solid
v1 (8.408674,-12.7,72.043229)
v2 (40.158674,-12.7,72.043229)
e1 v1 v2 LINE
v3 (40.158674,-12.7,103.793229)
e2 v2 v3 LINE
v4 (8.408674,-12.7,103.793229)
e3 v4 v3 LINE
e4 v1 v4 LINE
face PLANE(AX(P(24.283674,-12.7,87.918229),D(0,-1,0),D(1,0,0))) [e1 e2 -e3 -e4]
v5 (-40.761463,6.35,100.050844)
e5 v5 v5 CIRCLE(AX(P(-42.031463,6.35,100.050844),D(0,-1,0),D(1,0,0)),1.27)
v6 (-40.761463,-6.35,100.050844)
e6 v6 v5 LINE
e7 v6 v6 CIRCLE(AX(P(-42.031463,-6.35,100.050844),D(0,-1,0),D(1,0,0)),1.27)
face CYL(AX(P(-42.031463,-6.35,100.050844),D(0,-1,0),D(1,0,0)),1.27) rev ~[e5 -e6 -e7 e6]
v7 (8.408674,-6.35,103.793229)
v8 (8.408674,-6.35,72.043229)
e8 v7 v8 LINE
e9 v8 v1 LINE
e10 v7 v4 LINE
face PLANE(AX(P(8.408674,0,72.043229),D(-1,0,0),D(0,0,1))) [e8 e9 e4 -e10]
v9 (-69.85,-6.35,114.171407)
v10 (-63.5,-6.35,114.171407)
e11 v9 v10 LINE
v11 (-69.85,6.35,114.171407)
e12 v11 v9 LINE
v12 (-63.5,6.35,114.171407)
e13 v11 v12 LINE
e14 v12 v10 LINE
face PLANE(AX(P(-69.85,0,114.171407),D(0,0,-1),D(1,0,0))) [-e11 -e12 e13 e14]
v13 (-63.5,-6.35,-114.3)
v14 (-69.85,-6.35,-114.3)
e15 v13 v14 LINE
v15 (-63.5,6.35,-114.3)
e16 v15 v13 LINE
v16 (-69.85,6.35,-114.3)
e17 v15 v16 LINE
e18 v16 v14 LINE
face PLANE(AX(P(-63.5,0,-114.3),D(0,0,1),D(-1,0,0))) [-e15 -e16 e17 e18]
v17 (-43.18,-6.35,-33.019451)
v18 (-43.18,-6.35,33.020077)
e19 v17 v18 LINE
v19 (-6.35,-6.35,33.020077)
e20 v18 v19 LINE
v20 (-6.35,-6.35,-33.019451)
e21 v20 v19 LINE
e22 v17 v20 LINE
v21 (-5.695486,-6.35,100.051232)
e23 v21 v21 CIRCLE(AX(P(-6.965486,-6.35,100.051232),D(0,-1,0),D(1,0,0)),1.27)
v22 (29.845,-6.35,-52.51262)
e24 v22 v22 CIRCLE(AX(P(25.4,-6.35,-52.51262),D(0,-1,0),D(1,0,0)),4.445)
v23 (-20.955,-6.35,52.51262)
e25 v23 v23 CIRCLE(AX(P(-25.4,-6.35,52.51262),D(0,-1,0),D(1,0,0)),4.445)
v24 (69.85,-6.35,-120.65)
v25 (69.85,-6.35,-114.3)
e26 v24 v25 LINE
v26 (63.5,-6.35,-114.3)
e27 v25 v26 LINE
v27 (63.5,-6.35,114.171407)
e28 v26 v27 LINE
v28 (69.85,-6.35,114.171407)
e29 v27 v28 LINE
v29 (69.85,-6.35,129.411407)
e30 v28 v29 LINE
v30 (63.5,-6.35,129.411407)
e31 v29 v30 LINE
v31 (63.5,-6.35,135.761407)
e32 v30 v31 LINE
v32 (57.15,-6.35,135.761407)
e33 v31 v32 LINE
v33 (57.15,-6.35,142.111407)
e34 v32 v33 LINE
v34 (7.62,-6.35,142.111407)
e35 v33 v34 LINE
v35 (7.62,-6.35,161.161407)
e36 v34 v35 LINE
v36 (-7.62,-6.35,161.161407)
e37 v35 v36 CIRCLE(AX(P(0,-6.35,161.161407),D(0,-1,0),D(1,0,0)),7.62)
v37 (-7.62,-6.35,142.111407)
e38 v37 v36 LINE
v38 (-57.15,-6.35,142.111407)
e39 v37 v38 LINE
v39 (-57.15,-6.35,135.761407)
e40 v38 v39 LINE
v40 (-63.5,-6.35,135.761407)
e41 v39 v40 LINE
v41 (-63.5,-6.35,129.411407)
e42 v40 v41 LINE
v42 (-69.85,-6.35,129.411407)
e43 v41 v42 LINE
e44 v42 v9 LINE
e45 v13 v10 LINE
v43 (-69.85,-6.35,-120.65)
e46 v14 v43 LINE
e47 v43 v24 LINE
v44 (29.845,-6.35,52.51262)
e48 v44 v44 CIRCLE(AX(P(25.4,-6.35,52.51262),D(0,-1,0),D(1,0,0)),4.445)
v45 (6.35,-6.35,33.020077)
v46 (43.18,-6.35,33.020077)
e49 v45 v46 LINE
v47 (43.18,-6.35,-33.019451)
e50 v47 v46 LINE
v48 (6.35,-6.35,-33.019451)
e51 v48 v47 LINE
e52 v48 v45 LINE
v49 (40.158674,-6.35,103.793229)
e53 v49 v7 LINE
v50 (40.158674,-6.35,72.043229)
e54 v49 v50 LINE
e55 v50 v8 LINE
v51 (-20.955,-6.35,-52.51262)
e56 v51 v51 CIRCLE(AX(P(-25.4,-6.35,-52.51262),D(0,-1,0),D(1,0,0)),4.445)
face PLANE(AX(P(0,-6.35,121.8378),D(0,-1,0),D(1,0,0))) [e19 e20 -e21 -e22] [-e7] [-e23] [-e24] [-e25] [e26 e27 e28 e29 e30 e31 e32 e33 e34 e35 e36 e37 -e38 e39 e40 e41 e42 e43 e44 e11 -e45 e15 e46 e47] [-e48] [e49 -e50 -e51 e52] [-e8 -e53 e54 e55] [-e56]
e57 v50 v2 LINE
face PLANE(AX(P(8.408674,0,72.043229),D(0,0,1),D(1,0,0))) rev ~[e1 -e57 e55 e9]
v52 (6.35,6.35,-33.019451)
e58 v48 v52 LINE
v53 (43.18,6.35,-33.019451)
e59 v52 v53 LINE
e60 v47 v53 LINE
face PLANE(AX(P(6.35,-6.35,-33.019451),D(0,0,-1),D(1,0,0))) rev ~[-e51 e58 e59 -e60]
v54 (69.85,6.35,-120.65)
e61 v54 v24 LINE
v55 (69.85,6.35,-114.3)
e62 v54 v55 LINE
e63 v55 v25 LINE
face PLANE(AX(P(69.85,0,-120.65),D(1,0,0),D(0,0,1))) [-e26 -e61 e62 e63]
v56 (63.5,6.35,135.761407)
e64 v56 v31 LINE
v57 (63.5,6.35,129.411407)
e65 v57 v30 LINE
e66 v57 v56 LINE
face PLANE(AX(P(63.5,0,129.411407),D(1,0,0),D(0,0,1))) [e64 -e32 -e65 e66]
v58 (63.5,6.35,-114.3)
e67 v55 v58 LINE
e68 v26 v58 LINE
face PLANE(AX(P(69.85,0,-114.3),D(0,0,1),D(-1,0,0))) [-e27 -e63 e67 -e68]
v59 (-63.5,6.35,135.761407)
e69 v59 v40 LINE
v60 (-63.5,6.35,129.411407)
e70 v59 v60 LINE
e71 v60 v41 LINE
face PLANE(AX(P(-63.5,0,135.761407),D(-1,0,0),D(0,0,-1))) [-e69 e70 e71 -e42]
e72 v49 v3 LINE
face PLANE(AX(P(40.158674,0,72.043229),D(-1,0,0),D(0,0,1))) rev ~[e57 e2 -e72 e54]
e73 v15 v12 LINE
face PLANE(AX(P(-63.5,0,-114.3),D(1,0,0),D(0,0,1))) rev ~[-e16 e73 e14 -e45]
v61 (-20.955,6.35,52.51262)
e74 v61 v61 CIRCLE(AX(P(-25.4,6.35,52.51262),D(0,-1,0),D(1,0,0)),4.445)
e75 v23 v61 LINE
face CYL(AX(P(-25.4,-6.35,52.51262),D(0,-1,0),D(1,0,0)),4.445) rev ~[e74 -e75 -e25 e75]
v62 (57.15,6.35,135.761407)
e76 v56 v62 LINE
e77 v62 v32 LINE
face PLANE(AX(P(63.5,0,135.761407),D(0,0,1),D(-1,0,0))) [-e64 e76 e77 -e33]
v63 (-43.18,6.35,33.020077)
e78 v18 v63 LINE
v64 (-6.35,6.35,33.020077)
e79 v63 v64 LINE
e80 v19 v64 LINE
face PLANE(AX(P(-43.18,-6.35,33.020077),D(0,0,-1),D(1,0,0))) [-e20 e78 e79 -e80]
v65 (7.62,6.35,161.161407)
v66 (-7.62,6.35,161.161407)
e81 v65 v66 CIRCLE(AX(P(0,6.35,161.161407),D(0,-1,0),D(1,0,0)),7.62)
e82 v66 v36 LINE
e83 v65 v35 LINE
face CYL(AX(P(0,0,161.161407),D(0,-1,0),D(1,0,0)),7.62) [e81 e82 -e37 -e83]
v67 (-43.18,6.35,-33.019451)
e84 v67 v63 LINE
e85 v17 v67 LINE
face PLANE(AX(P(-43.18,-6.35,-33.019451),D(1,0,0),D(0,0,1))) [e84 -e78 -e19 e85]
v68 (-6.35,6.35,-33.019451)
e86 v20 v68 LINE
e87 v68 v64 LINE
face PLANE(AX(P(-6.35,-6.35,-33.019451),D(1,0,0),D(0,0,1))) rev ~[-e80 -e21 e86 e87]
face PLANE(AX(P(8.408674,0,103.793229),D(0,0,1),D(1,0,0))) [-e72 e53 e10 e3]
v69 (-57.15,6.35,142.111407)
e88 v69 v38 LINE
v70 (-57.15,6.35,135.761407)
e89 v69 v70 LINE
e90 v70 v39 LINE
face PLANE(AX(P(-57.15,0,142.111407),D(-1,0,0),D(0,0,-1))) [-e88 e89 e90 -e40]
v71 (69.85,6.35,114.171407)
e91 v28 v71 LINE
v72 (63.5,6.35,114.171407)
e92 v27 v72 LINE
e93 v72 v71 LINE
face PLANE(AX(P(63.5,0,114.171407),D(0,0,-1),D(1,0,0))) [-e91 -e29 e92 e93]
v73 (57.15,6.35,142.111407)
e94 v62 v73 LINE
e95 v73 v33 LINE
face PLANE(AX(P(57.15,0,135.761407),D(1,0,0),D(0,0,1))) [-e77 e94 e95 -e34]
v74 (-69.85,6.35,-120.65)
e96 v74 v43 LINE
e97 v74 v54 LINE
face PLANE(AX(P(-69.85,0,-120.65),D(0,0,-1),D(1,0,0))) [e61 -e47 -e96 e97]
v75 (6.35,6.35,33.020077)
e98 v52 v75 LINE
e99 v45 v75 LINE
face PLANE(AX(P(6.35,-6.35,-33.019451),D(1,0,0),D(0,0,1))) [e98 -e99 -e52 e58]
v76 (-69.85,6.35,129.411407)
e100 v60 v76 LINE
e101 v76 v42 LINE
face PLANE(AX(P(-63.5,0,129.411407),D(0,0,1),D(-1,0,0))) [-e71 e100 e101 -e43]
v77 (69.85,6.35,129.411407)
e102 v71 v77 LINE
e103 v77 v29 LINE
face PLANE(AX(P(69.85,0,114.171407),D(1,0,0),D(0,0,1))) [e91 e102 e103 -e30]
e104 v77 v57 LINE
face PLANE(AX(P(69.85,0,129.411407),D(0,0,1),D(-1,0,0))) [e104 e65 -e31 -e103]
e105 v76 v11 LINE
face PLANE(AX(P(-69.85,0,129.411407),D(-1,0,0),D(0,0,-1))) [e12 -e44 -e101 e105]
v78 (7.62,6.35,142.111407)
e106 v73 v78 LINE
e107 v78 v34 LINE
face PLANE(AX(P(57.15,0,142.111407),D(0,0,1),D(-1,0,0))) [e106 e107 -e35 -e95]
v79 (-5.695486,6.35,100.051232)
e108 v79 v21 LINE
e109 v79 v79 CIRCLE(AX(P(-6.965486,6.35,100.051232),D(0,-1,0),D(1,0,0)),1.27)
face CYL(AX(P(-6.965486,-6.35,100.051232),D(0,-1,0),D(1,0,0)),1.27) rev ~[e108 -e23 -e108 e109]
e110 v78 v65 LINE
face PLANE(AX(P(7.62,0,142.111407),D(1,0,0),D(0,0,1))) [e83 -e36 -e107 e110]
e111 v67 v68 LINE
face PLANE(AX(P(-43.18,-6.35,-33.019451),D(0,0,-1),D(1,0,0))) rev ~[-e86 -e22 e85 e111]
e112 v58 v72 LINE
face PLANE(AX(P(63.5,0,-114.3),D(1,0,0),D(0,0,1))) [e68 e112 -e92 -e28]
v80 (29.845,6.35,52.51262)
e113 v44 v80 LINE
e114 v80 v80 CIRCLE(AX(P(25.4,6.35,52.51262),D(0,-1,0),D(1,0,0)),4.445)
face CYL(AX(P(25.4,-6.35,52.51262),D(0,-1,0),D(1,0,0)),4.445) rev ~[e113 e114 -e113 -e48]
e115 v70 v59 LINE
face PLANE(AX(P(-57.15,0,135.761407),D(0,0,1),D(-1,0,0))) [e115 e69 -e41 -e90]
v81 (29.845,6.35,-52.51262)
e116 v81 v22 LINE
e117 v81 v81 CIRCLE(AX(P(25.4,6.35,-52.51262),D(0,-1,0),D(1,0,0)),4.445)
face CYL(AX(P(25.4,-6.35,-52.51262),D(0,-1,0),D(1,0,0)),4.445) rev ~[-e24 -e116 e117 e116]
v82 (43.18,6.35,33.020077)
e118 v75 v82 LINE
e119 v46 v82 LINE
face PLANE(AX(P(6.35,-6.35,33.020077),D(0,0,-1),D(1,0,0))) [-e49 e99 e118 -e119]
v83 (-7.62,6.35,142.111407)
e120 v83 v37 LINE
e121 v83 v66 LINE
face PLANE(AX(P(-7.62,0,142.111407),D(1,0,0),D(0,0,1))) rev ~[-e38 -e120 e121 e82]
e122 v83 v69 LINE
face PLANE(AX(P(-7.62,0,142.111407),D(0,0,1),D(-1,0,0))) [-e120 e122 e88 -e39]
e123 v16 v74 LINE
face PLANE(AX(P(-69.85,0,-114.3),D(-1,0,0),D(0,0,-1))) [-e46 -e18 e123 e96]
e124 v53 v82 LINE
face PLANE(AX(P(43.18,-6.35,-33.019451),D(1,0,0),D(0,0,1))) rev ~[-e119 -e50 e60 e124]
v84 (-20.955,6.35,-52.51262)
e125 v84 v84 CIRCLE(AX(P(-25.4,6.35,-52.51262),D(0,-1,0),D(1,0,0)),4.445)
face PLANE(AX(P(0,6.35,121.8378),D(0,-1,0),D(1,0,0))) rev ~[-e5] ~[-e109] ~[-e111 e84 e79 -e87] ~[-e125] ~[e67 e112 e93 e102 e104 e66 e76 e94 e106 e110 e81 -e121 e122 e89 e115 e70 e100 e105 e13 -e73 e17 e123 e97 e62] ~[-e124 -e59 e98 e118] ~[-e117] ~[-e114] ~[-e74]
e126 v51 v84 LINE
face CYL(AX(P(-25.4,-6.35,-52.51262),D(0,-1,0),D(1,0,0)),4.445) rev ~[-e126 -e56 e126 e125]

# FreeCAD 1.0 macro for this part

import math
import FreeCAD as App
import Part
import Sketcher
from FreeCAD import Vector
Q = App.Units.Quantity


def add_polygon(sketch, points):
    """Adds a closed chain of lines whose ends are joined by coincident constraints."""
    first, n = sketch.GeometryCount, len(points)
    for a, b in zip(points, points[1:] + points[:1]):
        sketch.addGeometry(Part.LineSegment(App.Vector(*a, 0), App.Vector(*b, 0)), False)
    for i in range(n):
        sketch.addConstraint(Sketcher.Constraint("Coincident", first + i, 2, first + (i + 1) % n, 1))

doc = App.newDocument("Part")
body = doc.addObject("PartDesign::Body", "Body")

# Sketch on XZ plane
sketch1 = doc.addObject("Sketcher::SketchObject", "Sketch")
body.addObject(sketch1)
sketch1.AttachmentSupport = (doc.XZ_Plane, [""])
sketch1.MapMode = "FlatFace"
sketch1.addGeometry([
    Part.LineSegment(Vector(69.85, 114.171407, 0), Vector(69.85, 129.411407, 0)),  # 0
    Part.LineSegment(Vector(69.85, 129.411407, 0), Vector(63.5, 129.411407, 0)),  # 1
    Part.LineSegment(Vector(63.5, 129.411407, 0), Vector(63.5, 135.761407, 0)),  # 2
    Part.LineSegment(Vector(63.5, 135.761407, 0), Vector(57.15, 135.761407, 0)),  # 3
    Part.LineSegment(Vector(57.15, 135.761407, 0), Vector(57.15, 142.111407, 0)),  # 4
    Part.LineSegment(Vector(57.15, 142.111407, 0), Vector(7.62, 142.111407, 0)),  # 5
    Part.LineSegment(Vector(7.62, 142.111407, 0), Vector(7.62, 161.161407, 0)),  # 6
    Part.ArcOfCircle(Part.Circle(Vector(0, 161.161407, 0), Vector(0, 0, 1), 7.62), math.radians(0), math.radians(180)),  # 7
    Part.LineSegment(Vector(-7.62, 161.161407, 0), Vector(-7.62, 142.111407, 0)),  # 8
    Part.LineSegment(Vector(-7.62, 142.111407, 0), Vector(-57.15, 142.111407, 0)),  # 9
    Part.LineSegment(Vector(-57.15, 142.111407, 0), Vector(-57.15, 135.761407, 0)),  # 10
    Part.LineSegment(Vector(-57.15, 135.761407, 0), Vector(-63.5, 135.761407, 0)),  # 11
    Part.LineSegment(Vector(-63.5, 135.761407, 0), Vector(-63.5, 129.411407, 0)),  # 12
    Part.LineSegment(Vector(-63.5, 129.411407, 0), Vector(-69.85, 129.411407, 0)),  # 13
    Part.LineSegment(Vector(-69.85, 129.411407, 0), Vector(-69.85, 114.171407, 0)),  # 14
    Part.LineSegment(Vector(-69.85, 114.171407, 0), Vector(-63.5, 114.171407, 0)),  # 15
    Part.LineSegment(Vector(-63.5, 114.171407, 0), Vector(-63.5, -114.3, 0)),  # 16
    Part.LineSegment(Vector(-63.5, -114.3, 0), Vector(-69.85, -114.3, 0)),  # 17
    Part.LineSegment(Vector(-69.85, -114.3, 0), Vector(-69.85, -120.65, 0)),  # 18
    Part.LineSegment(Vector(-69.85, -120.65, 0), Vector(69.85, -120.65, 0)),  # 19
    Part.LineSegment(Vector(69.85, -120.65, 0), Vector(69.85, -114.3, 0)),  # 20
    Part.LineSegment(Vector(69.85, -114.3, 0), Vector(63.5, -114.3, 0)),  # 21
    Part.LineSegment(Vector(63.5, -114.3, 0), Vector(63.5, 114.171407, 0)),  # 22
    Part.LineSegment(Vector(63.5, 114.171407, 0), Vector(69.85, 114.171407, 0)),  # 23
], False)
sketch1.addConstraint([
    Sketcher.Constraint("Coincident", 0, 2, 1, 1),
    Sketcher.Constraint("Coincident", 1, 2, 2, 1),
    Sketcher.Constraint("Coincident", 2, 2, 3, 1),
    Sketcher.Constraint("Coincident", 3, 2, 4, 1),
    Sketcher.Constraint("Coincident", 4, 2, 5, 1),
    Sketcher.Constraint("Coincident", 5, 2, 6, 1),
    Sketcher.Constraint("Tangent", 6, 2, 7, 1),
    Sketcher.Constraint("Tangent", 7, 2, 8, 1),
    Sketcher.Constraint("Coincident", 8, 2, 9, 1),
    Sketcher.Constraint("Coincident", 9, 2, 10, 1),
    Sketcher.Constraint("Coincident", 10, 2, 11, 1),
    Sketcher.Constraint("Coincident", 11, 2, 12, 1),
    Sketcher.Constraint("Coincident", 12, 2, 13, 1),
    Sketcher.Constraint("Coincident", 13, 2, 14, 1),
    Sketcher.Constraint("Coincident", 14, 2, 15, 1),
    Sketcher.Constraint("Coincident", 15, 2, 16, 1),
    Sketcher.Constraint("Coincident", 16, 2, 17, 1),
    Sketcher.Constraint("Coincident", 17, 2, 18, 1),
    Sketcher.Constraint("Coincident", 18, 2, 19, 1),
    Sketcher.Constraint("Coincident", 19, 2, 20, 1),
    Sketcher.Constraint("Coincident", 20, 2, 21, 1),
    Sketcher.Constraint("Coincident", 21, 2, 22, 1),
    Sketcher.Constraint("Coincident", 22, 2, 23, 1),
    Sketcher.Constraint("Coincident", 23, 2, 0, 1),
    Sketcher.Constraint("Vertical", 0),
    Sketcher.Constraint("Horizontal", 1),
    Sketcher.Constraint("Vertical", 2),
    Sketcher.Constraint("Horizontal", 3),
    Sketcher.Constraint("Vertical", 4),
    Sketcher.Constraint("Horizontal", 5),
    Sketcher.Constraint("Vertical", 6),
    Sketcher.Constraint("Vertical", 8),
    Sketcher.Constraint("Horizontal", 9),
    Sketcher.Constraint("Vertical", 10),
    Sketcher.Constraint("Horizontal", 11),
    Sketcher.Constraint("Vertical", 12),
    Sketcher.Constraint("Horizontal", 13),
    Sketcher.Constraint("Vertical", 14),
    Sketcher.Constraint("Horizontal", 15),
    Sketcher.Constraint("Vertical", 16),
    Sketcher.Constraint("Horizontal", 17),
    Sketcher.Constraint("Vertical", 18),
    Sketcher.Constraint("Horizontal", 19),
    Sketcher.Constraint("Vertical", 20),
    Sketcher.Constraint("Horizontal", 21),
    Sketcher.Constraint("Vertical", 22),
    Sketcher.Constraint("Horizontal", 23),
    Sketcher.Constraint("Symmetric", 5, 2, 8, 2, -2),
    Sketcher.Constraint("Symmetric", 3, 2, 10, 2, -2),
    Sketcher.Constraint("Symmetric", 1, 2, 12, 2, -2),
    Sketcher.Constraint("Symmetric", 17, 2, 20, 2, -2),
    Sketcher.Constraint("Symmetric", 15, 2, 22, 2, -2),
    Sketcher.Constraint("Vertical", 12, 2, 15, 2),
    Sketcher.Constraint("Vertical", 14, 2, 17, 2),
    Sketcher.Constraint("Vertical", 0, 2, 19, 2),
    Sketcher.Constraint("Equal", 1, 3),
    Sketcher.Constraint("Equal", 23, 2),
    Sketcher.Constraint("Equal", 2, 4),
    Sketcher.Constraint("Equal", 12, 18),
    Sketcher.Constraint("Radius", 7, Q("0.3 in")),
    Sketcher.Constraint("DistanceX", 19, 1, 19, 2, Q("5.5 in")),
    Sketcher.Constraint("DistanceY", 0, 1, 0, 2, Q("0.6 in")),
    Sketcher.Constraint("DistanceY", 2, 2, 7, 3, Q("1 in")),
    Sketcher.Constraint("DistanceX", 16, 2, 21, 2, Q("5 in")),
    Sketcher.Constraint("DistanceY", 16, 2, -1, 1, Q("4.5 in")),
    Sketcher.Constraint("DistanceY", 16, 2, 16, 1, Q("228.471407 mm")),
])
pad1 = doc.addObject("PartDesign::Pad", "Pad")
body.addObject(pad1)
pad1.Profile = sketch1
pad1.Length = Q("0.5 in")
pad1.Midplane = True

# Sketch on XZ plane
sketch2 = doc.addObject("Sketcher::SketchObject", "Sketch001")
body.addObject(sketch2)
sketch2.AttachmentSupport = (doc.XZ_Plane, [""])
sketch2.MapMode = "FlatFace"
add_polygon(sketch2, [(8.408674, 103.793229), (8.408674, 72.043229), (40.158674, 72.043229), (40.158674, 103.793229)])  # lines 0-3
sketch2.addConstraint([
    Sketcher.Constraint("Vertical", 0),
    Sketcher.Constraint("Horizontal", 1),
    Sketcher.Constraint("Vertical", 2),
    Sketcher.Constraint("Horizontal", 3),
    Sketcher.Constraint("Equal", 3, 0),
    Sketcher.Constraint("DistanceX", 1, 1, 1, 2, Q("1.25 in")),
    Sketcher.Constraint("DistanceY", -1, 1, 0, 2, Q("72.043229 mm")),
    Sketcher.Constraint("DistanceX", -1, 1, 0, 2, Q("8.408674 mm")),
])
pad2 = doc.addObject("PartDesign::Pad", "Pad001")
body.addObject(pad2)
pad2.Profile = sketch2
pad2.Length = Q("0.5 in")

# Sketch on XZ plane
sketch3 = doc.addObject("Sketcher::SketchObject", "Sketch002")
body.addObject(sketch3)
sketch3.AttachmentSupport = (doc.XZ_Plane, [""])
sketch3.MapMode = "FlatFace"
sketch3.AttachmentOffset = App.Placement(Vector(0, 0, 0.25 * 25.4), App.Rotation())
add_polygon(sketch3, [(6.35, 33.020077), (6.35, -33.019451), (43.18, -33.019451), (43.18, 33.020077)])  # lines 0-3
add_polygon(sketch3, [(-43.18, 33.020077), (-43.18, -33.019451), (-6.35, -33.019451), (-6.35, 33.020077)])  # lines 4-7
sketch3.addConstraint([
    Sketcher.Constraint("Vertical", 0),
    Sketcher.Constraint("Horizontal", 1),
    Sketcher.Constraint("Vertical", 2),
    Sketcher.Constraint("Horizontal", 3),
    Sketcher.Constraint("Vertical", 4),
    Sketcher.Constraint("Horizontal", 5),
    Sketcher.Constraint("Vertical", 6),
    Sketcher.Constraint("Horizontal", 7),
    Sketcher.Constraint("Symmetric", 1, 2, 4, 2, -2),
    Sketcher.Constraint("Symmetric", 3, 2, 6, 2, -2),
    Sketcher.Constraint("DistanceX", 1, 1, 1, 2, Q("1.45 in")),
    Sketcher.Constraint("DistanceX", -1, 1, 1, 2, Q("1.7 in")),
    Sketcher.Constraint("DistanceY", 0, 2, 0, 1, Q("66.039527 mm")),
    Sketcher.Constraint("DistanceY", 0, 2, -1, 1, Q("33.019451 mm")),
])
pocket1 = doc.addObject("PartDesign::Pocket", "Pocket")
body.addObject(pocket1)
pocket1.Profile = sketch3
pocket1.Length = Q("2 in")

# Sketch on XZ plane
sketch4 = doc.addObject("Sketcher::SketchObject", "Sketch003")
body.addObject(sketch4)
sketch4.AttachmentSupport = (doc.XZ_Plane, [""])
sketch4.MapMode = "FlatFace"
sketch4.AttachmentOffset = App.Placement(Vector(0, 0, 0.25 * 25.4), App.Rotation())
sketch4.addGeometry([
    Part.Circle(Vector(-42.031463, 100.050844, 0), Vector(0, 0, 1), 1.27),
    Part.Circle(Vector(-6.965486, 100.051232, 0), Vector(0, 0, 1), 1.27),
], False)
sketch4.addConstraint([
    Sketcher.Constraint("Equal", 0, 1),
    Sketcher.Constraint("Diameter", 0, Q("0.1 in")),
    Sketcher.Constraint("DistanceY", -1, 1, 1, 3, Q("100.051232 mm")),
    Sketcher.Constraint("DistanceX", 0, 3, -1, 1, Q("42.031463 mm")),
    Sketcher.Constraint("DistanceY", -1, 1, 0, 3, Q("100.050844 mm")),
    Sketcher.Constraint("DistanceX", 1, 3, -1, 1, Q("6.965486 mm")),
])
pocket2 = doc.addObject("PartDesign::Pocket", "Pocket001")
body.addObject(pocket2)
pocket2.Profile = sketch4
pocket2.Length = Q("1 in")
pocket2.Midplane = True

# Sketch on XZ plane
sketch5 = doc.addObject("Sketcher::SketchObject", "Sketch004")
body.addObject(sketch5)
sketch5.AttachmentSupport = (doc.XZ_Plane, [""])
sketch5.MapMode = "FlatFace"
sketch5.AttachmentOffset = App.Placement(Vector(0, 0, 0.25 * 25.4), App.Rotation())
sketch5.addGeometry([
    Part.Circle(Vector(-25.4, 52.51262, 0), Vector(0, 0, 1), 4.445),
    Part.Circle(Vector(25.4, 52.51262, 0), Vector(0, 0, 1), 4.445),
    Part.Circle(Vector(-25.4, -52.51262, 0), Vector(0, 0, 1), 4.445),
    Part.Circle(Vector(25.4, -52.51262, 0), Vector(0, 0, 1), 4.445),
], False)
sketch5.addConstraint([
    Sketcher.Constraint("Equal", 0, 1),
    Sketcher.Constraint("Equal", 1, 2),
    Sketcher.Constraint("Equal", 2, 3),
    Sketcher.Constraint("Symmetric", 1, 3, 2, 3, -1, 1),
    Sketcher.Constraint("Symmetric", 0, 3, 3, 3, -1, 1),
    Sketcher.Constraint("Symmetric", 0, 3, 1, 3, -2),
    Sketcher.Constraint("Diameter", 0, Q("0.35 in")),
    Sketcher.Constraint("DistanceX", 0, 3, -1, 1, Q("1 in")),
    Sketcher.Constraint("DistanceY", -1, 1, 0, 3, Q("52.51262 mm")),
])
pocket3 = doc.addObject("PartDesign::Pocket", "Pocket002")
body.addObject(pocket3)
pocket3.Profile = sketch5
pocket3.Length = Q("1 in")
pocket3.Midplane = True

doc.recompute()
